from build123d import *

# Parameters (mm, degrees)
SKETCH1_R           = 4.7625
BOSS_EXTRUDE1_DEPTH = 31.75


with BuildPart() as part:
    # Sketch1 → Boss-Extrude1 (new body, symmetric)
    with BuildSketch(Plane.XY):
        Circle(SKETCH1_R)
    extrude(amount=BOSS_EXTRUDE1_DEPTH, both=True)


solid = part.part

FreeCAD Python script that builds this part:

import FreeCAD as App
import Part
import Sketcher
from FreeCAD import Vector
Q = App.Units.Quantity

doc = App.newDocument("Part")
body = doc.addObject("PartDesign::Body", "Body")

sketch1 = body.newObject("Sketcher::SketchObject", "Sketch")
sketch1.AttachmentSupport = (doc.getObject("XY_Plane"), [""])
sketch1.MapMode = "FlatFace"
sketch1.addGeometry(Part.Circle(Vector(0, 0, 0), Vector(0, 0, 1), 4.8), False)
sketch1.addConstraint(Sketcher.Constraint("Coincident", 0, 3, -1, 1))
sketch1.addConstraint(Sketcher.Constraint("Diameter", 0, Q("0.375 in")))
pad1 = body.newObject("PartDesign::Pad", "Pad")
pad1.Profile = sketch1
pad1.Length = Q("2.5 in")
pad1.Midplane = True

doc.recompute()
